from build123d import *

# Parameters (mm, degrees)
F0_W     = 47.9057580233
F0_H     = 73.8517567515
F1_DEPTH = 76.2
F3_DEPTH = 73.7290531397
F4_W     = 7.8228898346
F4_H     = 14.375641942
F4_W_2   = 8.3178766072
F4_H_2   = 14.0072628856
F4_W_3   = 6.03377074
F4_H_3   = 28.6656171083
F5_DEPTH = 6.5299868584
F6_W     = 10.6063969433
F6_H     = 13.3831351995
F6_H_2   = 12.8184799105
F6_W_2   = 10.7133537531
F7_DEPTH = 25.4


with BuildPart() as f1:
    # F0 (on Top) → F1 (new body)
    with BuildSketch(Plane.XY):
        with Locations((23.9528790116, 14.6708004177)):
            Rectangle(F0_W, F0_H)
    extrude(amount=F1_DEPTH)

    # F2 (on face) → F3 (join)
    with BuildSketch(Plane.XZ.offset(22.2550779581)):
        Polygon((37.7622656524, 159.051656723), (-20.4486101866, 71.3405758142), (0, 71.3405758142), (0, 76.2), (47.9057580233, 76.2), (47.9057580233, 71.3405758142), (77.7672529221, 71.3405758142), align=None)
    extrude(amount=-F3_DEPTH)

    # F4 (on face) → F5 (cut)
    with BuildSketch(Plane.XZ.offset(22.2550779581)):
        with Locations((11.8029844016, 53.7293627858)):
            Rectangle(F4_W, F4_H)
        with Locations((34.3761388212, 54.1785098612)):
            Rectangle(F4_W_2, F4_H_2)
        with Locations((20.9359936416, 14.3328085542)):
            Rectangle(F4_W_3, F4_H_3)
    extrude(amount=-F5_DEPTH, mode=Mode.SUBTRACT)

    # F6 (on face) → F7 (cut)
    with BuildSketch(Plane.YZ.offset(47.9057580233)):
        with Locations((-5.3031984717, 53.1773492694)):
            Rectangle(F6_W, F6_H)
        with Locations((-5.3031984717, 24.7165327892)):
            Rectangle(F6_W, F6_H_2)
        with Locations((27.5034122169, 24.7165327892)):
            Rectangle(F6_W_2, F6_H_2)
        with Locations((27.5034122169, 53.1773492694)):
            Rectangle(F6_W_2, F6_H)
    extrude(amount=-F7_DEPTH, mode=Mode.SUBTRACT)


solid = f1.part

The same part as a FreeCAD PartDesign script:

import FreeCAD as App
import Part
import Sketcher

V = App.Vector
Q = App.Units.Quantity


def add_polygon(sketch, points):
    """Adds a closed chain of lines whose ends are joined by coincident constraints."""
    first, n = sketch.GeometryCount, len(points)
    for a, b in zip(points, points[1:] + points[:1]):
        sketch.addGeometry(Part.LineSegment(App.Vector(*a, 0), App.Vector(*b, 0)), False)
    for i in range(n):
        sketch.addConstraint(Sketcher.Constraint("Coincident", first + i, 2, first + (i + 1) % n, 1))

doc = App.newDocument("Part")
body = doc.addObject("PartDesign::Body", "Body")

# Sketch on XY plane
sketch1 = body.newObject("Sketcher::SketchObject", "Sketch")
sketch1.AttachmentSupport = (doc.getObject("XY_Plane"), [""])
sketch1.MapMode = "FlatFace"
add_polygon(sketch1, [(0, 52), (0, -22), (48, -22), (48, 52)])  # lines 0-3
sketch1.addConstraint(Sketcher.Constraint("Vertical", 0))
sketch1.addConstraint(Sketcher.Constraint("Horizontal", 1))
sketch1.addConstraint(Sketcher.Constraint("Vertical", 2))
sketch1.addConstraint(Sketcher.Constraint("Horizontal", 3))
sketch1.addConstraint(Sketcher.Constraint("PointOnObject", 0, 2, -2))
sketch1.addConstraint(Sketcher.Constraint("DistanceX", 1, 1, 1, 2, Q("47.905758 mm")))
sketch1.addConstraint(Sketcher.Constraint("DistanceY", 0, 2, 0, 1, Q("73.851757 mm")))
sketch1.addConstraint(Sketcher.Constraint("DistanceY", -1, 1, 2, 2, Q("51.596679 mm")))
pad1 = body.newObject("PartDesign::Pad", "Pad")
pad1.Profile = sketch1
pad1.Length = Q("3 in")

# Sketch on XZ plane
sketch2 = body.newObject("Sketcher::SketchObject", "Sketch001")
sketch2.AttachmentSupport = (doc.getObject("XZ_Plane"), [""])
sketch2.MapMode = "FlatFace"
sketch2.AttachmentOffset = App.Placement(V(0, 0, 22.255078), App.Rotation())
add_polygon(sketch2, [(37.8, 159.1), (-20.4, 71.3), (0, 71.3), (0, 76.2), (47.9, 76.2), (47.9, 71.3), (77.8, 71.3)])  # lines 0-6
sketch2.addConstraint(Sketcher.Constraint("Horizontal", 1))
sketch2.addConstraint(Sketcher.Constraint("Vertical", 2))
sketch2.addConstraint(Sketcher.Constraint("Horizontal", 3))
sketch2.addConstraint(Sketcher.Constraint("Vertical", 4))
sketch2.addConstraint(Sketcher.Constraint("Horizontal", 5))
sketch2.addConstraint(Sketcher.Constraint("PointOnObject", 1, 2, -2))
sketch2.addConstraint(Sketcher.Constraint("Horizontal", 1, 2, 4, 2))
sketch2.addConstraint(Sketcher.Constraint("DistanceY", -1, 1, 2, 2, Q("3 in")))
sketch2.addConstraint(Sketcher.Constraint("DistanceX", 1, 1, 1, 2, Q("20.44861 mm")))
sketch2.addConstraint(Sketcher.Constraint("DistanceX", 3, 1, 3, 2, Q("47.905758 mm")))
sketch2.addConstraint(Sketcher.Constraint("Distance", 6, Q("96.403489 mm")))
sketch2.addConstraint(Sketcher.Constraint("DistanceX", 5, 1, 5, 2, Q("29.861495 mm")))
sketch2.addConstraint(Sketcher.Constraint("DistanceY", 2, 1, 2, 2, Q("4.859424 mm")))
sketch2.addConstraint(Sketcher.Constraint("DistanceY", 4, 2, 6, 2, Q("87.711081 mm")))
pad2 = body.newObject("PartDesign::Pad", "Pad001")
pad2.Profile = sketch2
pad2.Length = 73.729053
pad2.Reversed = True

# Sketch on XZ plane
sketch3 = body.newObject("Sketcher::SketchObject", "Sketch002")
sketch3.AttachmentSupport = (doc.getObject("XZ_Plane"), [""])
sketch3.MapMode = "FlatFace"
sketch3.AttachmentOffset = App.Placement(V(0, 0, 22.255078), App.Rotation())
add_polygon(sketch3, [(8, 61), (8, 47), (16, 47), (16, 61)])  # lines 0-3
add_polygon(sketch3, [(30, 61), (30, 47), (39, 47), (39, 61)])  # lines 4-7
add_polygon(sketch3, [(18, 29), (18, 0), (24, 0), (24, 29)])  # lines 8-11
sketch3.addConstraint(Sketcher.Constraint("Vertical", 0))
sketch3.addConstraint(Sketcher.Constraint("Horizontal", 1))
sketch3.addConstraint(Sketcher.Constraint("Vertical", 2))
sketch3.addConstraint(Sketcher.Constraint("Horizontal", 3))
sketch3.addConstraint(Sketcher.Constraint("Vertical", 4))
sketch3.addConstraint(Sketcher.Constraint("Horizontal", 5))
sketch3.addConstraint(Sketcher.Constraint("Vertical", 6))
sketch3.addConstraint(Sketcher.Constraint("Horizontal", 7))
sketch3.addConstraint(Sketcher.Constraint("Vertical", 8))
sketch3.addConstraint(Sketcher.Constraint("Horizontal", 9))
sketch3.addConstraint(Sketcher.Constraint("Vertical", 10))
sketch3.addConstraint(Sketcher.Constraint("Horizontal", 11))
sketch3.addConstraint(Sketcher.Constraint("PointOnObject", 8, 2, -1))
sketch3.addConstraint(Sketcher.Constraint("DistanceX", 1, 1, 1, 2, Q("7.82289 mm")))
sketch3.addConstraint(Sketcher.Constraint("DistanceX", 9, 1, 9, 2, Q("6.033771 mm")))
sketch3.addConstraint(Sketcher.Constraint("DistanceY", 0, 2, 0, 1, Q("14.375642 mm")))
sketch3.addConstraint(Sketcher.Constraint("DistanceX", -1, 1, 4, 2, Q("30.217201 mm")))
sketch3.addConstraint(Sketcher.Constraint("DistanceY", 1, 2, 6, 2, Q("14.640599 mm")))
sketch3.addConstraint(Sketcher.Constraint("DistanceX", 9, 2, 5, 2, Q("14.582198 mm")))
sketch3.addConstraint(Sketcher.Constraint("DistanceX", 5, 1, 5, 2, Q("8.317877 mm")))
sketch3.addConstraint(Sketcher.Constraint("DistanceY", 4, 2, 4, 1, Q("14.007263 mm")))
sketch3.addConstraint(Sketcher.Constraint("DistanceY", 8, 2, 8, 1, Q("28.665617 mm")))
sketch3.addConstraint(Sketcher.Constraint("DistanceX", -1, 1, 0, 2, Q("7.891539 mm")))
sketch3.addConstraint(Sketcher.Constraint("DistanceY", -1, 1, 0, 2, Q("46.541542 mm")))
pocket1 = body.newObject("PartDesign::Pocket", "Pocket")
pocket1.Profile = sketch3
pocket1.Length = 6.529987

# Sketch on YZ plane
sketch4 = body.newObject("Sketcher::SketchObject", "Sketch003")
sketch4.AttachmentSupport = (doc.getObject("YZ_Plane"), [""])
sketch4.MapMode = "FlatFace"
sketch4.AttachmentOffset = App.Placement(V(0, 0, 47.905758), App.Rotation())
add_polygon(sketch4, [(-11, 60), (-11, 46), (0, 46), (0, 60)])  # lines 0-3
add_polygon(sketch4, [(-11, 31), (-11, 18), (0, 18), (0, 31)])  # lines 4-7
add_polygon(sketch4, [(22, 31), (22, 18), (33, 18), (33, 31)])  # lines 8-11
add_polygon(sketch4, [(22, 60), (22, 46), (33, 46), (33, 60)])  # lines 12-15
sketch4.addConstraint(Sketcher.Constraint("Vertical", 0))
sketch4.addConstraint(Sketcher.Constraint("Horizontal", 1))
sketch4.addConstraint(Sketcher.Constraint("Vertical", 2))
sketch4.addConstraint(Sketcher.Constraint("Horizontal", 3))
sketch4.addConstraint(Sketcher.Constraint("Vertical", 4))
sketch4.addConstraint(Sketcher.Constraint("Horizontal", 5))
sketch4.addConstraint(Sketcher.Constraint("Vertical", 6))
sketch4.addConstraint(Sketcher.Constraint("Horizontal", 7))
sketch4.addConstraint(Sketcher.Constraint("Vertical", 8))
sketch4.addConstraint(Sketcher.Constraint("Horizontal", 9))
sketch4.addConstraint(Sketcher.Constraint("Vertical", 10))
sketch4.addConstraint(Sketcher.Constraint("Horizontal", 11))
sketch4.addConstraint(Sketcher.Constraint("Vertical", 12))
sketch4.addConstraint(Sketcher.Constraint("Horizontal", 13))
sketch4.addConstraint(Sketcher.Constraint("Vertical", 14))
sketch4.addConstraint(Sketcher.Constraint("Horizontal", 15))
sketch4.addConstraint(Sketcher.Constraint("PointOnObject", 1, 2, -2))
sketch4.addConstraint(Sketcher.Constraint("PointOnObject", 5, 2, -2))
sketch4.addConstraint(Sketcher.Constraint("Horizontal", 5, 2, 8, 2))
sketch4.addConstraint(Sketcher.Constraint("Horizontal", 7, 2, 10, 2))
sketch4.addConstraint(Sketcher.Constraint("Horizontal", 1, 2, 12, 2))
sketch4.addConstraint(Sketcher.Constraint("Horizontal", 3, 2, 14, 2))
sketch4.addConstraint(Sketcher.Constraint("Vertical", 3, 2, 4, 2))
sketch4.addConstraint(Sketcher.Constraint("Vertical", 11, 2, 12, 2))
sketch4.addConstraint(Sketcher.Constraint("Vertical", 10, 2, 13, 2))
sketch4.addConstraint(Sketcher.Constraint("DistanceY", 4, 2, 4, 1, Q("12.81848 mm")))
sketch4.addConstraint(Sketcher.Constraint("DistanceX", 1, 1, 1, 2, Q("10.606397 mm")))
sketch4.addConstraint(Sketcher.Constraint("DistanceX", 9, 1, 9, 2, Q("10.713354 mm")))
sketch4.addConstraint(Sketcher.Constraint("DistanceY", 0, 2, 0, 1, Q("13.383135 mm")))
sketch4.addConstraint(Sketcher.Constraint("DistanceY", -1, 1, 0, 2, Q("46.485782 mm")))
sketch4.addConstraint(Sketcher.Constraint("DistanceX", -1, 1, 9, 2, Q("32.860089 mm")))
sketch4.addConstraint(Sketcher.Constraint("DistanceY", 4, 2, 0, 2, Q("28.178489 mm")))
pocket2 = body.newObject("PartDesign::Pocket", "Pocket001")
pocket2.Profile = sketch4
pocket2.Length = Q("1 in")

doc.recompute()
